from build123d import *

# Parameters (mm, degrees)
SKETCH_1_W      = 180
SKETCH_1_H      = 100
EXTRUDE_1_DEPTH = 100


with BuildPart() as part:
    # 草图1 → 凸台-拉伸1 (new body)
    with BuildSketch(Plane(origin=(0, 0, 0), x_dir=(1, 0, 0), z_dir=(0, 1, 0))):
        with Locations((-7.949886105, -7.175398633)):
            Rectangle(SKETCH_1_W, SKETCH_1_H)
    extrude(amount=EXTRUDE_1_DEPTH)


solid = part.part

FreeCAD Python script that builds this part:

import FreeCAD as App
import Part
import Sketcher
from FreeCAD import Vector

doc = App.newDocument("Part")
body = doc.addObject("PartDesign::Body", "Body")

sketch1 = body.newObject("Sketcher::SketchObject", "Sketch")
sketch1.AttachmentSupport = (doc.getObject("XZ_Plane"), [""])
sketch1.MapMode = "FlatFace"
sketch1.addGeometry(Part.LineSegment(Vector(-98, -43, 0), Vector(-98, 57, 0)), False)
sketch1.addGeometry(Part.LineSegment(Vector(-98, 57, 0), Vector(82, 57, 0)), False)
sketch1.addGeometry(Part.LineSegment(Vector(82, 57, 0), Vector(82, -43, 0)), False)
sketch1.addGeometry(Part.LineSegment(Vector(82, -43, 0), Vector(-98, -43, 0)), False)
sketch1.addConstraint(Sketcher.Constraint("Coincident", 0, 2, 1, 1))
sketch1.addConstraint(Sketcher.Constraint("Coincident", 1, 2, 2, 1))
sketch1.addConstraint(Sketcher.Constraint("Coincident", 2, 2, 3, 1))
sketch1.addConstraint(Sketcher.Constraint("Coincident", 3, 2, 0, 1))
sketch1.addConstraint(Sketcher.Constraint("Vertical", 0))
sketch1.addConstraint(Sketcher.Constraint("Horizontal", 1))
sketch1.addConstraint(Sketcher.Constraint("Vertical", 2))
sketch1.addConstraint(Sketcher.Constraint("Horizontal", 3))
sketch1.addConstraint(Sketcher.Constraint("DistanceX", 1, 1, 1, 2, 180.0))
sketch1.addConstraint(Sketcher.Constraint("DistanceY", 0, 1, 0, 2, 100.0))
sketch1.addConstraint(Sketcher.Constraint("DistanceY", -1, 1, 0, 2, 57.175399))
sketch1.addConstraint(Sketcher.Constraint("DistanceX", 0, 2, -1, 1, 97.949886))
pad1 = body.newObject("PartDesign::Pad", "Pad")
pad1.Profile = sketch1
pad1.Length = 100
pad1.Reversed = True

doc.recompute()
